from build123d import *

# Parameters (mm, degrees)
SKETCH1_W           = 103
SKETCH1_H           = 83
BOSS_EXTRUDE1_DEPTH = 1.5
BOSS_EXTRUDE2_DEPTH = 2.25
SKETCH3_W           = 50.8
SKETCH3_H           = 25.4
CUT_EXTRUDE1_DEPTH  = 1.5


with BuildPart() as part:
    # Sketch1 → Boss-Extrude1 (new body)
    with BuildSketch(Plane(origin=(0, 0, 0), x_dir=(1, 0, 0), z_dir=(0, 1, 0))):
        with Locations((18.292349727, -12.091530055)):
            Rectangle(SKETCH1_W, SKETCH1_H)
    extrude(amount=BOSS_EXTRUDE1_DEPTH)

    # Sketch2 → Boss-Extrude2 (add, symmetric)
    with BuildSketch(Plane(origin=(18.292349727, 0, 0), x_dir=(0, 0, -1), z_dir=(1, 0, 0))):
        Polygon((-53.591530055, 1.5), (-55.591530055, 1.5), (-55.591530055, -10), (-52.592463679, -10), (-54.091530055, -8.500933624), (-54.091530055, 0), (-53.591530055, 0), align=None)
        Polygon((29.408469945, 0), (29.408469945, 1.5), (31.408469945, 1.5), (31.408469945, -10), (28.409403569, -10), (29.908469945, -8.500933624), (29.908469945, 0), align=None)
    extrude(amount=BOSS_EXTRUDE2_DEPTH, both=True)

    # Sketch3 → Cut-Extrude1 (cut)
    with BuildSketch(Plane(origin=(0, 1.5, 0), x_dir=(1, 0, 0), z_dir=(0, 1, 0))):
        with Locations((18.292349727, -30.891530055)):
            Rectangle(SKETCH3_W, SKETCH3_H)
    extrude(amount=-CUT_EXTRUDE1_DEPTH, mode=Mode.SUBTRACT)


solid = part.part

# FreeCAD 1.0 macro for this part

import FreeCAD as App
import Part
import Sketcher

V = App.Vector
Q = App.Units.Quantity

doc = App.newDocument("Part")
body = doc.addObject("PartDesign::Body", "Body")

sketch1 = doc.addObject("Sketcher::SketchObject", "Sketch")
body.addObject(sketch1)
sketch1.AttachmentSupport = (doc.XZ_Plane, [""])
sketch1.MapMode = "FlatFace"
sketch1.addGeometry([
    Part.LineSegment(V(-33.20765, -29.40847, 0), V(-33.20765, 53.59153, 0)),
    Part.LineSegment(V(-33.20765, 53.59153, 0), V(69.79235, 53.59153, 0)),
    Part.LineSegment(V(69.79235, 53.59153, 0), V(69.79235, -29.40847, 0)),
    Part.LineSegment(V(69.79235, -29.40847, 0), V(-33.20765, -29.40847, 0)),
], False)
sketch1.addConstraint([
    Sketcher.Constraint("Coincident", 0, 2, 1, 1),
    Sketcher.Constraint("Coincident", 1, 2, 2, 1),
    Sketcher.Constraint("Coincident", 2, 2, 3, 1),
    Sketcher.Constraint("Coincident", 3, 2, 0, 1),
    Sketcher.Constraint("Vertical", 0),
    Sketcher.Constraint("Horizontal", 1),
    Sketcher.Constraint("Vertical", 2),
    Sketcher.Constraint("Horizontal", 3),
    Sketcher.Constraint("DistanceX", 1, 1, 1, 2, Q("103 mm")),
    Sketcher.Constraint("DistanceY", 0, 1, 0, 2, Q("83 mm")),
    Sketcher.Constraint("DistanceX", 0, 2, -1, 1, Q("33.20765 mm")),
    Sketcher.Constraint("DistanceY", -1, 1, 0, 2, Q("53.59153 mm")),
])
pad1 = doc.addObject("PartDesign::Pad", "Pad")
body.addObject(pad1)
pad1.Profile = sketch1
pad1.Length = 1.5
pad1.Reversed = True

sketch2 = doc.addObject("Sketcher::SketchObject", "Sketch001")
body.addObject(sketch2)
sketch2.AttachmentSupport = (doc.YZ_Plane, [""])
sketch2.MapMode = "FlatFace"
sketch2.AttachmentOffset = App.Placement(V(0, 0, 18.29235), App.Rotation())
sketch2.addGeometry([
    Part.LineSegment(V(1.5, 53.59153, 0), V(1.5, 55.59153, 0)),
    Part.LineSegment(V(1.5, 55.59153, 0), V(-10, 55.59153, 0)),
    Part.LineSegment(V(-10, 55.59153, 0), V(-10, 52.592464, 0)),
    Part.LineSegment(V(-10, 52.592464, 0), V(-8.500934, 54.09153, 0)),
    Part.LineSegment(V(-8.500934, 54.09153, 0), V(0, 54.09153, 0)),
    Part.LineSegment(V(0, 54.09153, 0), V(0, 53.59153, 0)),
    Part.LineSegment(V(0, 53.59153, 0), V(1.5, 53.59153, 0)),
    Part.LineSegment(V(1.5, -29.40847, 0), V(0, -29.40847, 0)),
    Part.LineSegment(V(0, -29.40847, 0), V(0, -29.90847, 0)),
    Part.LineSegment(V(0, -29.90847, 0), V(-8.500934, -29.90847, 0)),
    Part.LineSegment(V(-8.500934, -29.90847, 0), V(-10, -28.409404, 0)),
    Part.LineSegment(V(-10, -28.409404, 0), V(-10, -31.40847, 0)),
    Part.LineSegment(V(-10, -31.40847, 0), V(1.5, -31.40847, 0)),
    Part.LineSegment(V(1.5, -31.40847, 0), V(1.5, -29.40847, 0)),
], False)
sketch2.addConstraint([
    Sketcher.Constraint("Coincident", 0, 2, 1, 1),
    Sketcher.Constraint("Coincident", 1, 2, 2, 1),
    Sketcher.Constraint("Coincident", 2, 2, 3, 1),
    Sketcher.Constraint("Coincident", 3, 2, 4, 1),
    Sketcher.Constraint("Coincident", 4, 2, 5, 1),
    Sketcher.Constraint("Coincident", 5, 2, 6, 1),
    Sketcher.Constraint("Coincident", 6, 2, 0, 1),
    Sketcher.Constraint("Coincident", 7, 2, 8, 1),
    Sketcher.Constraint("Coincident", 8, 2, 9, 1),
    Sketcher.Constraint("Coincident", 9, 2, 10, 1),
    Sketcher.Constraint("Coincident", 10, 2, 11, 1),
    Sketcher.Constraint("Coincident", 11, 2, 12, 1),
    Sketcher.Constraint("Coincident", 12, 2, 13, 1),
    Sketcher.Constraint("Coincident", 13, 2, 7, 1),
    Sketcher.Constraint("Vertical", 0),
    Sketcher.Constraint("Horizontal", 1),
    Sketcher.Constraint("Vertical", 2),
    Sketcher.Constraint("Horizontal", 4),
    Sketcher.Constraint("Vertical", 5),
    Sketcher.Constraint("Horizontal", 6),
    Sketcher.Constraint("Horizontal", 7),
    Sketcher.Constraint("Vertical", 8),
    Sketcher.Constraint("Horizontal", 9),
    Sketcher.Constraint("Vertical", 11),
    Sketcher.Constraint("Horizontal", 12),
    Sketcher.Constraint("Vertical", 13),
    Sketcher.Constraint("PointOnObject", 4, 2, -2),
    Sketcher.Constraint("PointOnObject", 7, 2, -2),
    Sketcher.Constraint("Perpendicular", 3, 10),
    Sketcher.Constraint("Vertical", 3, 2, 9, 2),
    Sketcher.Constraint("Vertical", 2, 2, 10, 2),
    Sketcher.Constraint("Vertical", 6, 2, 12, 2),
    Sketcher.Constraint("Equal", 5, 8),
    Sketcher.Constraint("Equal", 2, 11),
    Sketcher.Constraint("Equal", 0, 13),
    Sketcher.Constraint("DistanceY", 0, 1, 0, 2, Q("2 mm")),
    Sketcher.Constraint("DistanceX", 1, 2, 1, 1, Q("11.5 mm")),
    Sketcher.Constraint("DistanceX", 6, 1, 6, 2, Q("1.5 mm")),
    Sketcher.Constraint("DistanceY", 5, 2, 5, 1, Q("0.5 mm")),
    Sketcher.Constraint("DistanceY", 7, 2, 5, 2, Q("83 mm")),
    Sketcher.Constraint("Distance", 3, Q("2.12 mm")),
    Sketcher.Constraint("DistanceY", -1, 1, 0, 2, Q("55.59153 mm")),
])
pad2 = doc.addObject("PartDesign::Pad", "Pad001")
body.addObject(pad2)
pad2.Profile = sketch2
pad2.Length = 4.5
pad2.Midplane = True

sketch3 = doc.addObject("Sketcher::SketchObject", "Sketch002")
body.addObject(sketch3)
sketch3.AttachmentSupport = (doc.XZ_Plane, [""])
sketch3.MapMode = "FlatFace"
sketch3.AttachmentOffset = App.Placement(V(0, 0, -1.5), App.Rotation())
sketch3.addGeometry([
    Part.LineSegment(V(-7.10765, 18.19153, 0), V(-7.10765, 43.59153, 0)),
    Part.LineSegment(V(-7.10765, 43.59153, 0), V(43.69235, 43.59153, 0)),
    Part.LineSegment(V(43.69235, 43.59153, 0), V(43.69235, 18.19153, 0)),
    Part.LineSegment(V(43.69235, 18.19153, 0), V(-7.10765, 18.19153, 0)),
], False)
sketch3.addConstraint([
    Sketcher.Constraint("Coincident", 0, 2, 1, 1),
    Sketcher.Constraint("Coincident", 1, 2, 2, 1),
    Sketcher.Constraint("Coincident", 2, 2, 3, 1),
    Sketcher.Constraint("Coincident", 3, 2, 0, 1),
    Sketcher.Constraint("Vertical", 0),
    Sketcher.Constraint("Horizontal", 1),
    Sketcher.Constraint("Vertical", 2),
    Sketcher.Constraint("Horizontal", 3),
    Sketcher.Constraint("DistanceX", 1, 1, 1, 2, Q("50.8 mm")),
    Sketcher.Constraint("DistanceY", 0, 1, 0, 2, Q("25.4 mm")),
    Sketcher.Constraint("DistanceX", 0, 2, -1, 1, Q("7.10765 mm")),
    Sketcher.Constraint("DistanceY", -1, 1, 0, 2, Q("43.59153 mm")),
])
pocket1 = doc.addObject("PartDesign::Pocket", "Pocket")
body.addObject(pocket1)
pocket1.Profile = sketch3
pocket1.Length = 1.5
pocket1.Reversed = True

doc.recompute()
